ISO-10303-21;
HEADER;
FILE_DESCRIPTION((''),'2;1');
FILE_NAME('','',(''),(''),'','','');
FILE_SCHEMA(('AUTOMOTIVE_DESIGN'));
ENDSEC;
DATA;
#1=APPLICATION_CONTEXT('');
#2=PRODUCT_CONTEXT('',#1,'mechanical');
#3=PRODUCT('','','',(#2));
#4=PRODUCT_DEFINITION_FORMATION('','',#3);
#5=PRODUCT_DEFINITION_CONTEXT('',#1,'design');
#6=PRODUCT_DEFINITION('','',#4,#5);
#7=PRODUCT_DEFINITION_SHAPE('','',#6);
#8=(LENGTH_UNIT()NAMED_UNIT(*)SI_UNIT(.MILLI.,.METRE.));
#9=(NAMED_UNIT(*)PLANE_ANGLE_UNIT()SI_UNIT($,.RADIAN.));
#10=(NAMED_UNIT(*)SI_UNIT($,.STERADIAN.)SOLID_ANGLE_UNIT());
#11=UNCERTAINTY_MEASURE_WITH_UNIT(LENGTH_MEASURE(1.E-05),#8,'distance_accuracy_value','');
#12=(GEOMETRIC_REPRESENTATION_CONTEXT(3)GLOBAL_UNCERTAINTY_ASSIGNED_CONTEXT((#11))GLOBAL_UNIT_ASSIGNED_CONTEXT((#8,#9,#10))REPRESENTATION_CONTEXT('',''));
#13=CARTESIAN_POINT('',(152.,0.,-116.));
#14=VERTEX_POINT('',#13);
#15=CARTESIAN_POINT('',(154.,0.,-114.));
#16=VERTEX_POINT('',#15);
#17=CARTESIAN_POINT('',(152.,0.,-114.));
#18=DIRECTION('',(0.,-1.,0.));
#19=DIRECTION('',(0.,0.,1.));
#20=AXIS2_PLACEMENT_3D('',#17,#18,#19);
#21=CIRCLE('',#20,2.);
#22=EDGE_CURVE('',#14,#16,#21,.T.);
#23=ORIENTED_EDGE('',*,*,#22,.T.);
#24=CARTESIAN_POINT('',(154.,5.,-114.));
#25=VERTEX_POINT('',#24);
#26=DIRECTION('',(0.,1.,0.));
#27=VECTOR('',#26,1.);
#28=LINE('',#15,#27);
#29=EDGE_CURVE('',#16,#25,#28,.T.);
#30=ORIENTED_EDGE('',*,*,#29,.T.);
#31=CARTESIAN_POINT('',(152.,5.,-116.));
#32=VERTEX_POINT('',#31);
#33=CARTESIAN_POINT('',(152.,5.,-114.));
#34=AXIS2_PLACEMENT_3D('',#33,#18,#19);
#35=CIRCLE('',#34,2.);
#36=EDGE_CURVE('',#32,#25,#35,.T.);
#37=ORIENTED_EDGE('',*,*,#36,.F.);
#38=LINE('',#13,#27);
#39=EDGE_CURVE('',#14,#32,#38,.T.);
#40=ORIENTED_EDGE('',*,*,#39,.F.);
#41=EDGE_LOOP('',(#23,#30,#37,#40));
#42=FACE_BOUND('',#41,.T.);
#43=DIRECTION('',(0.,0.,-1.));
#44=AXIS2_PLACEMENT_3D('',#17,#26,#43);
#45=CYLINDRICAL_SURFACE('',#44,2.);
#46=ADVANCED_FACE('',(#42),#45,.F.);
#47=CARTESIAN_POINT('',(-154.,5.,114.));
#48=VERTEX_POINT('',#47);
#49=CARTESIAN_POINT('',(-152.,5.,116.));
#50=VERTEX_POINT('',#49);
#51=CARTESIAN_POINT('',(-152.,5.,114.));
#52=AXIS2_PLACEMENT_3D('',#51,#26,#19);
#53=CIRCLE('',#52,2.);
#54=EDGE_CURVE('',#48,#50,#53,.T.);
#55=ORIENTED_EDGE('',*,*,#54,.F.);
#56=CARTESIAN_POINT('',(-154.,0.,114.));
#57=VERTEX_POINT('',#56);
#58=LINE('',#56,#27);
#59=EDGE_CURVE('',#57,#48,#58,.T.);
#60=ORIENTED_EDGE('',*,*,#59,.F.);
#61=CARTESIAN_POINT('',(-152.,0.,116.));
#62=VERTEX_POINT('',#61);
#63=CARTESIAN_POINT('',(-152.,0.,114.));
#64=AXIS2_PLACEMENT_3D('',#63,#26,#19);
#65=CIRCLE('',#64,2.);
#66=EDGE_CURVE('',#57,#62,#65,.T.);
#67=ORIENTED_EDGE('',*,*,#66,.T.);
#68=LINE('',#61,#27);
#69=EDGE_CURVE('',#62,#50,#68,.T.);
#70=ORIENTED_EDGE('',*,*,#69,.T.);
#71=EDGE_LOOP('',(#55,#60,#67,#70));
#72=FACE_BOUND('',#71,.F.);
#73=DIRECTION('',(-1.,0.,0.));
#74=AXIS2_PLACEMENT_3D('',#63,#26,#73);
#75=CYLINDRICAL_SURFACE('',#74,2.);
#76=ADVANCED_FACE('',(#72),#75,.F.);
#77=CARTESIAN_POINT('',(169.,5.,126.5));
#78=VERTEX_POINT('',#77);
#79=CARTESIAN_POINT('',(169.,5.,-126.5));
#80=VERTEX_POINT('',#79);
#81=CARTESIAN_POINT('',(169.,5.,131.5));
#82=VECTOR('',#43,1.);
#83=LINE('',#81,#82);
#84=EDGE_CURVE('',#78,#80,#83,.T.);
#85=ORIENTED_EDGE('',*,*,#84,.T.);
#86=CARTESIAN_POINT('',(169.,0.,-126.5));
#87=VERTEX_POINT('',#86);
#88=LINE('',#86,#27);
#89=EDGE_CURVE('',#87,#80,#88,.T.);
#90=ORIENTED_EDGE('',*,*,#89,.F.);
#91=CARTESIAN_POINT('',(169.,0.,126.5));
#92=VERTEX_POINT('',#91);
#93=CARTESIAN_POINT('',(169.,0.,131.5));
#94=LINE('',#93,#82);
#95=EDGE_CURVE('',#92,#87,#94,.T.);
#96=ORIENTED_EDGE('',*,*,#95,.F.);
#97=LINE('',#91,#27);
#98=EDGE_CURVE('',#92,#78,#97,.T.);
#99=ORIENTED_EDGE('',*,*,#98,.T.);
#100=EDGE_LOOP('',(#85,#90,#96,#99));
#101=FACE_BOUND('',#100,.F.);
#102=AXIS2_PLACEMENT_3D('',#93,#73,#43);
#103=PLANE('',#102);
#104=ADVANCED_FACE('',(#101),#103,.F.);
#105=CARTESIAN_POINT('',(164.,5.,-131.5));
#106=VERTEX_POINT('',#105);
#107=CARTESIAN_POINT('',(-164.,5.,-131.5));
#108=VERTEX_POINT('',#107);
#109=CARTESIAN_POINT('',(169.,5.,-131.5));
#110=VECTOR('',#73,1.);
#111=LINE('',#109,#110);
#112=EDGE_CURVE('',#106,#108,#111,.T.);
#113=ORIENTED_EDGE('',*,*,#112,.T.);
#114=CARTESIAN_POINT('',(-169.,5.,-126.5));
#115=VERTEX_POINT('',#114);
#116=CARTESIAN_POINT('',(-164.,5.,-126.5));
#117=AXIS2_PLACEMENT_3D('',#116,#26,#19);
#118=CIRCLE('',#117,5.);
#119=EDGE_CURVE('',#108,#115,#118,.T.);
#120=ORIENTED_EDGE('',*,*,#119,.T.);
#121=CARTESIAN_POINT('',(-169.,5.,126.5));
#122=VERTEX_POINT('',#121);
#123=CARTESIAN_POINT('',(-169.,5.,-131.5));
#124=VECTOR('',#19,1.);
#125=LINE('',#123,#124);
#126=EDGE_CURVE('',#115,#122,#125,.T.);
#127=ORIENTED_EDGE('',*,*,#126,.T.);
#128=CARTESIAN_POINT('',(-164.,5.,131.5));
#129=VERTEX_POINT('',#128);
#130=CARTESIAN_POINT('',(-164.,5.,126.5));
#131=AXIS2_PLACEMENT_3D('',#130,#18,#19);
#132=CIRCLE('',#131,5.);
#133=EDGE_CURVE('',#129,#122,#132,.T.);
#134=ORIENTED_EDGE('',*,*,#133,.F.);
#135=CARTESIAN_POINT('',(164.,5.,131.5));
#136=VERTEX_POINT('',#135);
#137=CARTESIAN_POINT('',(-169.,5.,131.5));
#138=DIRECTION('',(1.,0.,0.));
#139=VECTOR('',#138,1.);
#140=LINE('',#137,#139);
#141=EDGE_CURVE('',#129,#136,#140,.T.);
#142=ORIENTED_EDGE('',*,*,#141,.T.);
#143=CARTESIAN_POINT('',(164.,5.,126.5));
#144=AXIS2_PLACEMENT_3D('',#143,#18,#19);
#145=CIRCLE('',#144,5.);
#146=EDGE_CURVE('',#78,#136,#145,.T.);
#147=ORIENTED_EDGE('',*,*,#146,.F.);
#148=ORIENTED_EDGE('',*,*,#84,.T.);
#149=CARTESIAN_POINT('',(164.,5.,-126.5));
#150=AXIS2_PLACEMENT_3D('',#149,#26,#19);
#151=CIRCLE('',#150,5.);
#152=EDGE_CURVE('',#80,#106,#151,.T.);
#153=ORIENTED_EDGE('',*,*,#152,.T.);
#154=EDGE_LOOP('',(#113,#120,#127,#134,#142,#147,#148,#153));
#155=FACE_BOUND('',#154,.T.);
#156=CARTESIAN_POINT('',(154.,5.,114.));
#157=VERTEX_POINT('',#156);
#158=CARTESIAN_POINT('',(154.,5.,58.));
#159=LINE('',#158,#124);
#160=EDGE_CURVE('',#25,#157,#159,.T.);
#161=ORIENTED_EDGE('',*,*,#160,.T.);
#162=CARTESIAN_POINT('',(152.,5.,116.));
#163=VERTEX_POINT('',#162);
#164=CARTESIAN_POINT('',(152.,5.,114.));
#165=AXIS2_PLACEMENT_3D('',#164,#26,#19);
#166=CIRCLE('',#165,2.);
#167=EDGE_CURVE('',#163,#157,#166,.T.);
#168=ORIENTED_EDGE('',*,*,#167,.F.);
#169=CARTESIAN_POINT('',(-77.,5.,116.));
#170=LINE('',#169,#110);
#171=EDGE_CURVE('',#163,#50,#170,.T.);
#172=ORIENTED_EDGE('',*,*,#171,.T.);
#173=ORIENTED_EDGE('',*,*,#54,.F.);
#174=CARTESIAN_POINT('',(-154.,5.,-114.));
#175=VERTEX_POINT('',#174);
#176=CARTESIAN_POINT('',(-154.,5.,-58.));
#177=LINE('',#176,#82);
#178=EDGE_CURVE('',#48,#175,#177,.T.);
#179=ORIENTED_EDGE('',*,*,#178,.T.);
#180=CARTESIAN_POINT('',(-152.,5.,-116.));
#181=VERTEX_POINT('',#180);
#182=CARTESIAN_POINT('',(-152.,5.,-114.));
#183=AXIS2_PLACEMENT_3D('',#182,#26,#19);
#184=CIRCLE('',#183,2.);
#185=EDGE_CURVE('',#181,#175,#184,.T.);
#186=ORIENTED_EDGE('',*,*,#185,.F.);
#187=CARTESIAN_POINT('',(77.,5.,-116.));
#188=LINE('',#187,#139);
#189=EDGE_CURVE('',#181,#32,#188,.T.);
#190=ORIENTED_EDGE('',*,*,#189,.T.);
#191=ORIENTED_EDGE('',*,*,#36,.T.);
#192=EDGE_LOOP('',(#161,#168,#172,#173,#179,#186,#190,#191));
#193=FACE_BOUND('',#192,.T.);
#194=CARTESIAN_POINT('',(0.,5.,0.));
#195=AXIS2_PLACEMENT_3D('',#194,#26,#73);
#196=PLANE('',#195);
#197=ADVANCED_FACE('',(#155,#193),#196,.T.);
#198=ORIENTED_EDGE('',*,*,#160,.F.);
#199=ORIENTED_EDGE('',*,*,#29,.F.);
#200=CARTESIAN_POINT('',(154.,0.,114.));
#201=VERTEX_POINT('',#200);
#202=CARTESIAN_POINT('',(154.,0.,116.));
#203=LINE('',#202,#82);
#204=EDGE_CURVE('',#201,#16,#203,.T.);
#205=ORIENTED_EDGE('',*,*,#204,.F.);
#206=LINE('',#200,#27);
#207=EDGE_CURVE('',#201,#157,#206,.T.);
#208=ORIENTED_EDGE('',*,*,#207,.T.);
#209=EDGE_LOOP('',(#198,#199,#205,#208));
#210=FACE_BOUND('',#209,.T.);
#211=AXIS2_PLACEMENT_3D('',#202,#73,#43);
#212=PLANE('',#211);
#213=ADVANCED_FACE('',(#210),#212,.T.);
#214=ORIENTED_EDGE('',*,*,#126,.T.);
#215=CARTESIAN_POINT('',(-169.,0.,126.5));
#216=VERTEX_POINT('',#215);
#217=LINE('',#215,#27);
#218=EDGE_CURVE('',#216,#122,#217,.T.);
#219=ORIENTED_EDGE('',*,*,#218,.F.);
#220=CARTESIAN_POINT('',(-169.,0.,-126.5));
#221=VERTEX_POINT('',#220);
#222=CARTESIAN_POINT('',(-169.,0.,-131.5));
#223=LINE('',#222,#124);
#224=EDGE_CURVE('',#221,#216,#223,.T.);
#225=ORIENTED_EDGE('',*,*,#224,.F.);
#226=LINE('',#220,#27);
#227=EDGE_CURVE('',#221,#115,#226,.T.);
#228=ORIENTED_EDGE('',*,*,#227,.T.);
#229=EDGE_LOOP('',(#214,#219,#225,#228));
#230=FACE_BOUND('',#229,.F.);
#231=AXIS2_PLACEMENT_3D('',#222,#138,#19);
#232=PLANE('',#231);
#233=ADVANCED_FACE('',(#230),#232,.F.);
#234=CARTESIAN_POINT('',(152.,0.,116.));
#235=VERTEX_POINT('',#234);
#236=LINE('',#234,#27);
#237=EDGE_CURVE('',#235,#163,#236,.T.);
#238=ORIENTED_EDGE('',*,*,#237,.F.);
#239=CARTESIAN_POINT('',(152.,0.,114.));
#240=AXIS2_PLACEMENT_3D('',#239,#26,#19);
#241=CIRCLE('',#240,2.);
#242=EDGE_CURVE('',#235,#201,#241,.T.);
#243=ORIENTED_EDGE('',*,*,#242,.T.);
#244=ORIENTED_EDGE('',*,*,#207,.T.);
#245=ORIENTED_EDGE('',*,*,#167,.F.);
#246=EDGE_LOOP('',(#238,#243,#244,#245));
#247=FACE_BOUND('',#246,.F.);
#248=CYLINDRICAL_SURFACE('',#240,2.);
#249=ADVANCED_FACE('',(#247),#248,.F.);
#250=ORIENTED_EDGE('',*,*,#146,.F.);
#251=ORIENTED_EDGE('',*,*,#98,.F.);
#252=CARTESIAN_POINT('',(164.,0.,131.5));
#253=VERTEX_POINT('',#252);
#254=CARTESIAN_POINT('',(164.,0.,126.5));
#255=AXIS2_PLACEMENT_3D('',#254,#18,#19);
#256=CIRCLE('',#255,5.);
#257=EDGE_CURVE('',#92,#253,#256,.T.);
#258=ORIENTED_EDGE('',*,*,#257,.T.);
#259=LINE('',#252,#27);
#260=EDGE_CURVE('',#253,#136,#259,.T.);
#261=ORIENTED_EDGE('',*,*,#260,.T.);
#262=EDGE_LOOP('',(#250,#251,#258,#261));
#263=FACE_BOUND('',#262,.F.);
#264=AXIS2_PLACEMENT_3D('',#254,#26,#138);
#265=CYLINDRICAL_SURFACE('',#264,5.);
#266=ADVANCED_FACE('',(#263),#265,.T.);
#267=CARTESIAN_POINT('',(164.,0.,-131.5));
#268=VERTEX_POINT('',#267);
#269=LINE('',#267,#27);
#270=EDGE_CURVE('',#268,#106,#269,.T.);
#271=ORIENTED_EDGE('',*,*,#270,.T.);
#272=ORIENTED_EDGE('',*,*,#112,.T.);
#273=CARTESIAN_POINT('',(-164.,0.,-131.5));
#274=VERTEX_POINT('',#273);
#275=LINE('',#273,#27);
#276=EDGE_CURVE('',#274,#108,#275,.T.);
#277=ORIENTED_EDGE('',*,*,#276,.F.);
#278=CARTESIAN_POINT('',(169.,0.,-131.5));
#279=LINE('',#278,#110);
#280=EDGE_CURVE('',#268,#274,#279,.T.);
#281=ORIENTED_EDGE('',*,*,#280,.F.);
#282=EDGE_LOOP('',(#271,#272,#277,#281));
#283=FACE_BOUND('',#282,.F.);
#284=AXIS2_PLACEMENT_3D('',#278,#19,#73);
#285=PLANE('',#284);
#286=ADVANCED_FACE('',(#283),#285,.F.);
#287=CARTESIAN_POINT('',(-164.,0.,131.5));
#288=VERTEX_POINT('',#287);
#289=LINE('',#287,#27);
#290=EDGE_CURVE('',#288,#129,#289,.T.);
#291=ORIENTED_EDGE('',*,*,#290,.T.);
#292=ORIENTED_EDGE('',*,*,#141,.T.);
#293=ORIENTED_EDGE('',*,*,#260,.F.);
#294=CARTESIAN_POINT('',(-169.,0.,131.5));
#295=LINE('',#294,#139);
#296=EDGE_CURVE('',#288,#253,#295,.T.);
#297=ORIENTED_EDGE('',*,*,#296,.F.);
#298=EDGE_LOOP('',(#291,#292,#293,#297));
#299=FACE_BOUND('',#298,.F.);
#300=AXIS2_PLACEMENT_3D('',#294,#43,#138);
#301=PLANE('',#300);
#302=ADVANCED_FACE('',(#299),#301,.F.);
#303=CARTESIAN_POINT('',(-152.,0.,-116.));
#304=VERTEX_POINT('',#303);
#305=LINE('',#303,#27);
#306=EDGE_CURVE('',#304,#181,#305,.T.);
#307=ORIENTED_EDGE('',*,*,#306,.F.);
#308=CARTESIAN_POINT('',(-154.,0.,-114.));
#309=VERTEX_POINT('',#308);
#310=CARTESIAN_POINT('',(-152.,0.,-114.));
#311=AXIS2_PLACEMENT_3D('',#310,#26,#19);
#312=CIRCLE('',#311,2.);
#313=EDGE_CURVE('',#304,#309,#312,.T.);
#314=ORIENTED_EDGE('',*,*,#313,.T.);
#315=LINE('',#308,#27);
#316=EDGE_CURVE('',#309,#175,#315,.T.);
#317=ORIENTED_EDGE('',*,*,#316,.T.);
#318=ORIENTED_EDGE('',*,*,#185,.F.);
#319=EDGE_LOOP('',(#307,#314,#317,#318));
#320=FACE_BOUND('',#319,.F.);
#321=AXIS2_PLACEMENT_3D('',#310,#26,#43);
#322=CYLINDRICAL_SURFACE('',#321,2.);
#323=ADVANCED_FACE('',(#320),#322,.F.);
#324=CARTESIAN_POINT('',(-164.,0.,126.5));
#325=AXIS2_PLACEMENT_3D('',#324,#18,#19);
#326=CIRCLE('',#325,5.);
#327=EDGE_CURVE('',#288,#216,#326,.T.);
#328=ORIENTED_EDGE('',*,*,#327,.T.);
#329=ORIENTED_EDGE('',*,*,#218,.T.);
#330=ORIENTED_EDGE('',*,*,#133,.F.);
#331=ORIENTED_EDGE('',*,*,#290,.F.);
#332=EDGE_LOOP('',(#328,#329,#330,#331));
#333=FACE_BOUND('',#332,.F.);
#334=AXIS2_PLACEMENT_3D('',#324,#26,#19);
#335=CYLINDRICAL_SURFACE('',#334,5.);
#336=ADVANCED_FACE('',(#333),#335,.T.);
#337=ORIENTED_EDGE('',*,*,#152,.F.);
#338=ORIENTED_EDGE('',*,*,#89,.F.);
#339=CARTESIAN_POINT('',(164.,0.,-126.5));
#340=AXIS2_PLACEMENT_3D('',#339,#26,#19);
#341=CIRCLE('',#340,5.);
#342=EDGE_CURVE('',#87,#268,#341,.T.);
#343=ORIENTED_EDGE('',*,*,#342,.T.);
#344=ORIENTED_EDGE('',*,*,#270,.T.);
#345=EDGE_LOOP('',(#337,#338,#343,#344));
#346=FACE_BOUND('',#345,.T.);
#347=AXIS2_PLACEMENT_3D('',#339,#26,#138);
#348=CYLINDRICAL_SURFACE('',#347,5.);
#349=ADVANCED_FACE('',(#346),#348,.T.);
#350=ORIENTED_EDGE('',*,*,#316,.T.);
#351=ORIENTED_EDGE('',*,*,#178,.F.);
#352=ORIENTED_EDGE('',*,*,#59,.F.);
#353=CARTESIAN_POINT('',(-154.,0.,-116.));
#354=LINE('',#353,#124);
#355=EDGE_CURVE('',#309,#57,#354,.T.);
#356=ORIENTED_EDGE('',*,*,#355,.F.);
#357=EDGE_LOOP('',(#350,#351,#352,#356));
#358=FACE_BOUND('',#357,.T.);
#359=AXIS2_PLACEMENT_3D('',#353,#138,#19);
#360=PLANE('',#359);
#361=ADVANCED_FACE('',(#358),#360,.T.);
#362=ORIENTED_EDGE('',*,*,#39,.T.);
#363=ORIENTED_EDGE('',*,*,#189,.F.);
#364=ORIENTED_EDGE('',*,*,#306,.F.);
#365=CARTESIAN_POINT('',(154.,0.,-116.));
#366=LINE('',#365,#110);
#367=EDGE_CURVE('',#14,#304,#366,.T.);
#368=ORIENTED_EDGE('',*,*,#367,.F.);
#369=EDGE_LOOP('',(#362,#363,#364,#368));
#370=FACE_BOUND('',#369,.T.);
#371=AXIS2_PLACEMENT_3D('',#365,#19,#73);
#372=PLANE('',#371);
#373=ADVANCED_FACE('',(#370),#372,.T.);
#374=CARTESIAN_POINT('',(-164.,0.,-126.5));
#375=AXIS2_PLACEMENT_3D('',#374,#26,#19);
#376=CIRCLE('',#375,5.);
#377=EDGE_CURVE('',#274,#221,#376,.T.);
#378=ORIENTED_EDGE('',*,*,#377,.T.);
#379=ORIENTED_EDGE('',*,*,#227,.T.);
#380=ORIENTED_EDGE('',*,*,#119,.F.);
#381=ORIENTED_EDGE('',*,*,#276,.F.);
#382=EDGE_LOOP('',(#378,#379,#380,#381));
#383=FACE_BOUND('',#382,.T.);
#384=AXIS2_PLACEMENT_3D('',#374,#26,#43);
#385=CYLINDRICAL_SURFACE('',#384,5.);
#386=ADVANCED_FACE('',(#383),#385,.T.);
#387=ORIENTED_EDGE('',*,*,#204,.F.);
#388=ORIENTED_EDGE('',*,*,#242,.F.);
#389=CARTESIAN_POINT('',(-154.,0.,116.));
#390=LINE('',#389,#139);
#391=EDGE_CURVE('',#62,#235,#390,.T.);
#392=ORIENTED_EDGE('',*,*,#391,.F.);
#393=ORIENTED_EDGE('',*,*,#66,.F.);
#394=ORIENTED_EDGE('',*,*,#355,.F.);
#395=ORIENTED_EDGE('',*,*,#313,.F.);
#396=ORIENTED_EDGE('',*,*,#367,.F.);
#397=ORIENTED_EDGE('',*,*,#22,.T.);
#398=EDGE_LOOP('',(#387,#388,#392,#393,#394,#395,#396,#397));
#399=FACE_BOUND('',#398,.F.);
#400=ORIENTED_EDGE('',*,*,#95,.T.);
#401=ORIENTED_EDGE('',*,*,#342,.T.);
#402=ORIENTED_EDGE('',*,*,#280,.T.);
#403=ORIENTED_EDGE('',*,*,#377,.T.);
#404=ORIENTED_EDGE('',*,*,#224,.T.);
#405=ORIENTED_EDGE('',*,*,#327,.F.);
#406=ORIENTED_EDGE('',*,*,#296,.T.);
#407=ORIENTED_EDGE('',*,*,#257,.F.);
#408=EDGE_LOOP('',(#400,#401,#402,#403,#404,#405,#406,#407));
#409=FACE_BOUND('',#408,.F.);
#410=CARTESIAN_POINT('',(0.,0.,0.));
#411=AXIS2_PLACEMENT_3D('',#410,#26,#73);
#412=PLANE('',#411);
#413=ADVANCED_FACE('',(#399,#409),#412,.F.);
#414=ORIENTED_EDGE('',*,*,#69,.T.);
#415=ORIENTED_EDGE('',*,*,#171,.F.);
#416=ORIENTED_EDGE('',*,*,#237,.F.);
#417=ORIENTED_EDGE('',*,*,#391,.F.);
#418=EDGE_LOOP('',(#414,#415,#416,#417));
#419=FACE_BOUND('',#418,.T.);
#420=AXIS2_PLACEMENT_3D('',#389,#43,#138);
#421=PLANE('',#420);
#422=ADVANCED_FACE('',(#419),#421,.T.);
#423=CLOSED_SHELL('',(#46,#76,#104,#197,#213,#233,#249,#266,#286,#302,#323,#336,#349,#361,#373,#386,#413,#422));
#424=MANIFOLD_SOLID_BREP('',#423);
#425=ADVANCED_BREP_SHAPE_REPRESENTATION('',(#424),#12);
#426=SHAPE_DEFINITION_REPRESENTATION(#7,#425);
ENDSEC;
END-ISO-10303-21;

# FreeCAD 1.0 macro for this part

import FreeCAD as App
import Part
import Sketcher

V = App.Vector
Q = App.Units.Quantity


def edges_at(feature, points):
    """Names of the edges that pass closest to the given points."""
    edges = feature.Shape.Edges
    near = lambda p: min(range(len(edges)), key=lambda i: edges[i].distToShape(Part.Vertex(*p))[0])
    return sorted({f"Edge{near(p) + 1}" for p in points})

doc = App.newDocument("Part")
body = doc.addObject("PartDesign::Body", "Body")

# Sketch on XZ plane
sketch1 = doc.addObject("Sketcher::SketchObject", "Sketch")
body.addObject(sketch1)
sketch1.AttachmentSupport = (doc.XZ_Plane, [""])
sketch1.MapMode = "FlatFace"
sketch1.addGeometry([
    Part.LineSegment(V(169, 131.5, 0), V(169, -131.5, 0)),
    Part.LineSegment(V(169, -131.5, 0), V(-169, -131.5, 0)),
    Part.LineSegment(V(-169, -131.5, 0), V(-169, 131.5, 0)),
    Part.LineSegment(V(-169, 131.5, 0), V(169, 131.5, 0)),
], False)
sketch1.addConstraint([
    Sketcher.Constraint("Coincident", 0, 2, 1, 1),
    Sketcher.Constraint("Coincident", 1, 2, 2, 1),
    Sketcher.Constraint("Coincident", 2, 2, 3, 1),
    Sketcher.Constraint("Coincident", 3, 2, 0, 1),
    Sketcher.Constraint("Vertical", 0),
    Sketcher.Constraint("Horizontal", 1),
    Sketcher.Constraint("Vertical", 2),
    Sketcher.Constraint("Horizontal", 3),
    Sketcher.Constraint("Symmetric", 0, 2, 2, 2, -1, 1),
    Sketcher.Constraint("DistanceX", 1, 2, 1, 1, Q("338 mm")),
    Sketcher.Constraint("DistanceY", 0, 2, 0, 1, Q("263 mm")),
])
pad1 = doc.addObject("PartDesign::Pad", "Pad")
body.addObject(pad1)
pad1.Profile = sketch1
pad1.Length = 5
pad1.Reversed = True

# Sketch on XZ plane
sketch2 = doc.addObject("Sketcher::SketchObject", "Sketch001")
body.addObject(sketch2)
sketch2.AttachmentSupport = (doc.XZ_Plane, [""])
sketch2.MapMode = "FlatFace"
sketch2.addGeometry([
    Part.LineSegment(V(-154, -116, 0), V(154, -116, 0)),
    Part.LineSegment(V(154, -116, 0), V(154, 116, 0)),
    Part.LineSegment(V(154, 116, 0), V(-154, 116, 0)),
    Part.LineSegment(V(-154, 116, 0), V(-154, -116, 0)),
], False)
sketch2.addConstraint([
    Sketcher.Constraint("Coincident", 0, 2, 1, 1),
    Sketcher.Constraint("Coincident", 1, 2, 2, 1),
    Sketcher.Constraint("Coincident", 2, 2, 3, 1),
    Sketcher.Constraint("Coincident", 3, 2, 0, 1),
    Sketcher.Constraint("Horizontal", 0),
    Sketcher.Constraint("Vertical", 1),
    Sketcher.Constraint("Horizontal", 2),
    Sketcher.Constraint("Vertical", 3),
    Sketcher.Constraint("Symmetric", 0, 2, 2, 2, -1, 1),
    Sketcher.Constraint("DistanceX", 0, 1, 0, 2, Q("308 mm")),
    Sketcher.Constraint("DistanceY", 1, 1, 1, 2, Q("232 mm")),
])
pocket1 = doc.addObject("PartDesign::Pocket", "Pocket")
body.addObject(pocket1)
pocket1.Profile = sketch2
pocket1.Length = 10
doc.recompute()

fillet = doc.addObject("PartDesign::Fillet", "Fillet")
body.addObject(fillet)
fillet.Base = (pocket1, edges_at(pocket1, [
    (-154, 2.5, 116),
    (-154, 2.5, -116),
    (154, 2.5, 116),
    (154, 2.5, -116),
]))
fillet.Radius = 2
doc.recompute()

fillet2 = doc.addObject("PartDesign::Fillet", "Fillet001")
body.addObject(fillet2)
fillet2.Base = (fillet, edges_at(fillet, [
    (169, 2.5, -131.5),
    (-169, 2.5, -131.5),
    (169, 2.5, 131.5),
    (-169, 2.5, 131.5),
]))
fillet2.Radius = 5

doc.recompute()
